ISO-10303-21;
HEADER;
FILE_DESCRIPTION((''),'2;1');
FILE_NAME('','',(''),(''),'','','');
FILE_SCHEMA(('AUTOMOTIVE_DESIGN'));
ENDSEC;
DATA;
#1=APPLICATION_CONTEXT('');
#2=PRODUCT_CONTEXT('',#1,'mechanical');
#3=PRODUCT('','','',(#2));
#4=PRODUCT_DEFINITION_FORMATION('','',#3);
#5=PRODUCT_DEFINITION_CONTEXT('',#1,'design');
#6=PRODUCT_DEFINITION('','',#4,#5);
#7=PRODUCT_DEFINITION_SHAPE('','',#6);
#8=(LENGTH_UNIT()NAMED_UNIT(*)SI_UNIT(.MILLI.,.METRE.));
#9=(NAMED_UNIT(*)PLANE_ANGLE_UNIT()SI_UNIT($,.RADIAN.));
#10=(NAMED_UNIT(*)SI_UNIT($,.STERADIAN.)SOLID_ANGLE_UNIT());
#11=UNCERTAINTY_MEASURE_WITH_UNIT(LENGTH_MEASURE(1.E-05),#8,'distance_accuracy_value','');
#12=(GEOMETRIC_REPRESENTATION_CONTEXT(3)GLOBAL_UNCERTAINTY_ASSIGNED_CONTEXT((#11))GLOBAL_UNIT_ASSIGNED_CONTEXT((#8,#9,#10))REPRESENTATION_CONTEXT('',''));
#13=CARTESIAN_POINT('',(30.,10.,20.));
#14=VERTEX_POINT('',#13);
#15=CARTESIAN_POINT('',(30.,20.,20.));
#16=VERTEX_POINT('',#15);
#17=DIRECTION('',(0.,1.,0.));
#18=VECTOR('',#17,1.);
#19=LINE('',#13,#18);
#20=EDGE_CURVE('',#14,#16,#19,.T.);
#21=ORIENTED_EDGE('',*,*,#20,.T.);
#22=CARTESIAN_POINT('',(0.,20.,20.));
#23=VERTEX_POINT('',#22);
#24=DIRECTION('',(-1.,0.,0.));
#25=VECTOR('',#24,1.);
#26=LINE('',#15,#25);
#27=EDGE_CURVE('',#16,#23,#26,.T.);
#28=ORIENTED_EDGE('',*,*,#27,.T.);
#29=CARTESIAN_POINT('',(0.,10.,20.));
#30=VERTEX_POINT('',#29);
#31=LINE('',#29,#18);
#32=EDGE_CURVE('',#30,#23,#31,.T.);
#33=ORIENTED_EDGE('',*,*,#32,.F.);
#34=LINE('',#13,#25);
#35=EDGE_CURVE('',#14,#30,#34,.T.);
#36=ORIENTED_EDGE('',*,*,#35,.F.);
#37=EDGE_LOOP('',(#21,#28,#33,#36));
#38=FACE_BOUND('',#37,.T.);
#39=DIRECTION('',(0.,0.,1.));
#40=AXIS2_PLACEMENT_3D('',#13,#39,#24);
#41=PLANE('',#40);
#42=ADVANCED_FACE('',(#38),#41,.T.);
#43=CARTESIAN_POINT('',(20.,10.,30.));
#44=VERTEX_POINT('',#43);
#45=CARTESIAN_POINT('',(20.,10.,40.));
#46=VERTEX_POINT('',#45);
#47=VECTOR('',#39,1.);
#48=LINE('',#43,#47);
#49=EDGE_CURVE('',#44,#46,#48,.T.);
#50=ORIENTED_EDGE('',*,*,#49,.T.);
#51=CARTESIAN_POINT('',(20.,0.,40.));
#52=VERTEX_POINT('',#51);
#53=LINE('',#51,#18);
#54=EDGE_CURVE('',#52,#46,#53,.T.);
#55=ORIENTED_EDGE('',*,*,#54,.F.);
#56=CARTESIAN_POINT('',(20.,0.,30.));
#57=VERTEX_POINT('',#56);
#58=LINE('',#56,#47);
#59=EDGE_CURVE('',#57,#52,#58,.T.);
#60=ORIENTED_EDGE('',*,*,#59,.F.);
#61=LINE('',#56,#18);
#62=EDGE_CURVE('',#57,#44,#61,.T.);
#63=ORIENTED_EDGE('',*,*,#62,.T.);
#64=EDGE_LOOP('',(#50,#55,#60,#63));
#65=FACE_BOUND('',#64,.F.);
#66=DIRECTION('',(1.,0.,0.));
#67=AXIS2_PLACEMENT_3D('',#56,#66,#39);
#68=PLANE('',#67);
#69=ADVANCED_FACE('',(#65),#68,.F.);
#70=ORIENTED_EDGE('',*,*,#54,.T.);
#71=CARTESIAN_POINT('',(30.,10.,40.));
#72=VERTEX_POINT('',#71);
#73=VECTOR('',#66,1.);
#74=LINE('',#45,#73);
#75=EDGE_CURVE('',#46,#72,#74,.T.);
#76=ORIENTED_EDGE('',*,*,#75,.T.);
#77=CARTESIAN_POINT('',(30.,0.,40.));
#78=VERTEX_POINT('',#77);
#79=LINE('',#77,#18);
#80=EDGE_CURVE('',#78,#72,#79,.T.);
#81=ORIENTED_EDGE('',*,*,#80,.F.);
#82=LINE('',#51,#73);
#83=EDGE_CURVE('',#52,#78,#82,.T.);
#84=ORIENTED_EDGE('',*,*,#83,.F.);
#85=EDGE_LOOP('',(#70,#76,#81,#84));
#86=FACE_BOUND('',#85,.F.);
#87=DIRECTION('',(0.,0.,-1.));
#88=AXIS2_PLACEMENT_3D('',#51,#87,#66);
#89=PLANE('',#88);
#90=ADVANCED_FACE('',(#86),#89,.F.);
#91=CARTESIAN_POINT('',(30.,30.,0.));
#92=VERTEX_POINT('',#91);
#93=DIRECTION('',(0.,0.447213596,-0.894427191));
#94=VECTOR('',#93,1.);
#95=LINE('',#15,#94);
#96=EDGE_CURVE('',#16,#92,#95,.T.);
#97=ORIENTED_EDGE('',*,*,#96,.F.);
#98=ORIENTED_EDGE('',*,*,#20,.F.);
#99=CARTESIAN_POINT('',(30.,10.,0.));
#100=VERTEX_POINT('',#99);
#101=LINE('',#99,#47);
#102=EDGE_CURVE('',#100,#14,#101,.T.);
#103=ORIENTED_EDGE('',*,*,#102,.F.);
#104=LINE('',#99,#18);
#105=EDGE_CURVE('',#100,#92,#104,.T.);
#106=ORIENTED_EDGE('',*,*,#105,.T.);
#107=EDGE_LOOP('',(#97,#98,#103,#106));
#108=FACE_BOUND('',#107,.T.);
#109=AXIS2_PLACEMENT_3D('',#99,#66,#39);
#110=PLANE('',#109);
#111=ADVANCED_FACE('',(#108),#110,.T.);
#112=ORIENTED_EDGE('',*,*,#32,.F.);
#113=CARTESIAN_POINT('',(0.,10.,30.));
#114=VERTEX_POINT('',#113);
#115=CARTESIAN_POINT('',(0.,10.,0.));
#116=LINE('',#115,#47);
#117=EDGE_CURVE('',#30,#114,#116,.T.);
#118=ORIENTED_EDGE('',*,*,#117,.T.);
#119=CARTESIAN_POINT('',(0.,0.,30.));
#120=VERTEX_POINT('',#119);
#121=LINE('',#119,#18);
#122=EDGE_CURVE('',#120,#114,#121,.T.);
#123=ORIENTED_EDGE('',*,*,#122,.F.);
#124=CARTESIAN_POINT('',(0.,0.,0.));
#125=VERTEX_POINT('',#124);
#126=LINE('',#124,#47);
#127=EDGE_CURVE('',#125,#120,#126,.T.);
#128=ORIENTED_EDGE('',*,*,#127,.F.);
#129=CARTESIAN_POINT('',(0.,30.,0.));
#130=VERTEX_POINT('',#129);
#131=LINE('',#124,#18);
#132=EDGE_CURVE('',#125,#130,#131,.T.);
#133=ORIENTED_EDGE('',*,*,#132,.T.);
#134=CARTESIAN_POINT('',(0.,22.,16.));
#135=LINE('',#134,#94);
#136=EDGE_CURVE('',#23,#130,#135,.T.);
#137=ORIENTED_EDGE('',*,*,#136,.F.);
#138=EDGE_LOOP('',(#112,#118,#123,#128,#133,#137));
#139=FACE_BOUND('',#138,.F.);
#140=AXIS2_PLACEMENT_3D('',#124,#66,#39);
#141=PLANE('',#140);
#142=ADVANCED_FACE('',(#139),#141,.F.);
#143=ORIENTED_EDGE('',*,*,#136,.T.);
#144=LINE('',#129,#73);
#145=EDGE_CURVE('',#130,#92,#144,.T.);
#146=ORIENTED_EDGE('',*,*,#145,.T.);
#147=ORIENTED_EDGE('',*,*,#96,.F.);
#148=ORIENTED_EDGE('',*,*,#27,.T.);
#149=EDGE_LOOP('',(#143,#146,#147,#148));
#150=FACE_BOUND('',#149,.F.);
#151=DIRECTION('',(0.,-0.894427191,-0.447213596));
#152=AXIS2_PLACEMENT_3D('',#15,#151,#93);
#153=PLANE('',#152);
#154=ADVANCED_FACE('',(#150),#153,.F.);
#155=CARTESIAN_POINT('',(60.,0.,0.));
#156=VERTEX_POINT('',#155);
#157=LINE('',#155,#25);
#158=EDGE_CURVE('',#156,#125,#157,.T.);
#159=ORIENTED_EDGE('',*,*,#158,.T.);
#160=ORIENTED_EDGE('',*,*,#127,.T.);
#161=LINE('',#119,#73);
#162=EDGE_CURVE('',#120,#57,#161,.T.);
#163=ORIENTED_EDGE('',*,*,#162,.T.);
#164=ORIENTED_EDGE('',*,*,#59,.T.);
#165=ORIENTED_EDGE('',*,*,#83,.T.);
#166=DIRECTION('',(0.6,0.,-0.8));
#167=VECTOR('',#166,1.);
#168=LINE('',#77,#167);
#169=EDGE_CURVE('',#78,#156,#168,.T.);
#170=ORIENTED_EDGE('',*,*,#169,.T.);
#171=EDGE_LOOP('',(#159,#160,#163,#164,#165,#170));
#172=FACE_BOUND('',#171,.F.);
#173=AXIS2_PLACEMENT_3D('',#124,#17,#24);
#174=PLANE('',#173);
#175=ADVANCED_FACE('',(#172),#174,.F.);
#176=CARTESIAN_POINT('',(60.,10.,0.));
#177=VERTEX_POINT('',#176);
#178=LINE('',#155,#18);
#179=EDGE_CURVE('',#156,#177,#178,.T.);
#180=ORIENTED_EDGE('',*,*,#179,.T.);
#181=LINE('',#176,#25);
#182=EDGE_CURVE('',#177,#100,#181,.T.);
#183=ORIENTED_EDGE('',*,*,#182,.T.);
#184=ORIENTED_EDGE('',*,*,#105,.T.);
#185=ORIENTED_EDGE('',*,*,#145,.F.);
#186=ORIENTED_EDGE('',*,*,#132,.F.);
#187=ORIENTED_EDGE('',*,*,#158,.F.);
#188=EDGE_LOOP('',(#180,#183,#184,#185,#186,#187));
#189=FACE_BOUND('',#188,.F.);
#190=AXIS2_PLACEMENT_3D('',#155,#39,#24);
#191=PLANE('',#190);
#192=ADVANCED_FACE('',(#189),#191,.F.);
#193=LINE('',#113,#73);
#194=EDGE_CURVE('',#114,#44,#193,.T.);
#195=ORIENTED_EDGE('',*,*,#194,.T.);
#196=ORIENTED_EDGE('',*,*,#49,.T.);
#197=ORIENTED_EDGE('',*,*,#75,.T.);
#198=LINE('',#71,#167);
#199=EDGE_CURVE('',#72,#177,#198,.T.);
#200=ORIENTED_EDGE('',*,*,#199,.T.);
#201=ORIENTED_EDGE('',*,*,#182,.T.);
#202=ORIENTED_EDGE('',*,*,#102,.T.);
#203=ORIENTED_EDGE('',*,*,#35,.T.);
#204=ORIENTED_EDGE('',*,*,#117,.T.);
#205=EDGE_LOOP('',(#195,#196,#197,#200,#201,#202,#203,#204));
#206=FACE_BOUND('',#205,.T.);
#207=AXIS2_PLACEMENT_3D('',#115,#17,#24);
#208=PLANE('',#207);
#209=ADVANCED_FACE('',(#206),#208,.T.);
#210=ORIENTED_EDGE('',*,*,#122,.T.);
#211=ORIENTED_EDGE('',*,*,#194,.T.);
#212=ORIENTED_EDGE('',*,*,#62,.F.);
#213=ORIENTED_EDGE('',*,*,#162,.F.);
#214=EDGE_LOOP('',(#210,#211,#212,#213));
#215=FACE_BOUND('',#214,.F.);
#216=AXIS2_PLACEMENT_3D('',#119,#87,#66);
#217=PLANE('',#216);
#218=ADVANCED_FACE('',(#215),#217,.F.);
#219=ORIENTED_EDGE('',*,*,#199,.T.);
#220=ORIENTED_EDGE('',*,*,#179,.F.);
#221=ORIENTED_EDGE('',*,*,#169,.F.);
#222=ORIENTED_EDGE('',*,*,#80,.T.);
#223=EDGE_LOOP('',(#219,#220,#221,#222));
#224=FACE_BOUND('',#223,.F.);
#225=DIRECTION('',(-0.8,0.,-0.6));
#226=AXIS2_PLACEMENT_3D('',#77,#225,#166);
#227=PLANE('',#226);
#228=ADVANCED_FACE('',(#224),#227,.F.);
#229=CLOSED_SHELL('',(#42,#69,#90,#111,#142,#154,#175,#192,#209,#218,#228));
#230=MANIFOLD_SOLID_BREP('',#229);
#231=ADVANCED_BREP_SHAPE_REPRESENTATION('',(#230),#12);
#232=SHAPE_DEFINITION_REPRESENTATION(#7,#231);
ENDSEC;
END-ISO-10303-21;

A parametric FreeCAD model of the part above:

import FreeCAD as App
import Part
import Sketcher
from FreeCAD import Vector
Q = App.Units.Quantity

doc = App.newDocument("Part")
params = doc.addObject("Spreadsheet::Sheet", "Params")
for row, (alias, value) in enumerate([
    ("sketch1_width", "60 mm"),
    ("sketch1_width2", "20 mm"),
    ("sketch1_width3", "10 mm"),
    ("sketch1_height", "30 mm"),
    ("pad1_length", "10 mm"),
    ("sketch2_width", "30 mm"),
    ("sketch2_height", "20 mm"),
    ("pad2_length", "20 mm"),
    ("sketch3_width", "10 mm"),
    ("sketch3_height", "20 mm"),
], start=1):
    params.set(f"A{row}", alias)
    params.set(f"B{row}", "=" + value)
    params.setAlias(f"B{row}", alias)

body = doc.addObject("PartDesign::Body", "Body")

# Sketch on XZ plane
sketch1 = doc.addObject("Sketcher::SketchObject", "Sketch")
body.addObject(sketch1)
sketch1.AttachmentSupport = (doc.XZ_Plane, [""])
sketch1.MapMode = "FlatFace"
sketch1.addGeometry(Part.LineSegment(Vector(60, 0, 0), Vector(0, 0, 0)), False)
sketch1.addGeometry(Part.LineSegment(Vector(0, 0, 0), Vector(0, 30, 0)), False)
sketch1.addGeometry(Part.LineSegment(Vector(0, 30, 0), Vector(20, 30, 0)), False)
sketch1.addGeometry(Part.LineSegment(Vector(20, 30, 0), Vector(20, 40, 0)), False)
sketch1.addGeometry(Part.LineSegment(Vector(20, 40, 0), Vector(30, 40, 0)), False)
sketch1.addGeometry(Part.LineSegment(Vector(30, 40, 0), Vector(60, 0, 0)), False)
sketch1.addConstraint(Sketcher.Constraint("Coincident", 0, 2, 1, 1))
sketch1.addConstraint(Sketcher.Constraint("Coincident", 1, 2, 2, 1))
sketch1.addConstraint(Sketcher.Constraint("Coincident", 2, 2, 3, 1))
sketch1.addConstraint(Sketcher.Constraint("Coincident", 3, 2, 4, 1))
sketch1.addConstraint(Sketcher.Constraint("Coincident", 4, 2, 5, 1))
sketch1.addConstraint(Sketcher.Constraint("Coincident", 5, 2, 0, 1))
sketch1.addConstraint(Sketcher.Constraint("Horizontal", 0))
sketch1.addConstraint(Sketcher.Constraint("Vertical", 1))
sketch1.addConstraint(Sketcher.Constraint("Horizontal", 2))
sketch1.addConstraint(Sketcher.Constraint("Vertical", 3))
sketch1.addConstraint(Sketcher.Constraint("Horizontal", 4))
sketch1.addConstraint(Sketcher.Constraint("Coincident", 0, 2, -1, 1))
sketch1.addConstraint(Sketcher.Constraint("Equal", 4, 3))
sketch1.addConstraint(Sketcher.Constraint("DistanceX", 0, 2, 0, 1, Q("60 mm")))
sketch1.addConstraint(Sketcher.Constraint("DistanceX", 2, 1, 2, 2, Q("20 mm")))
sketch1.addConstraint(Sketcher.Constraint("DistanceX", 4, 1, 4, 2, Q("10 mm")))
sketch1.addConstraint(Sketcher.Constraint("DistanceY", 1, 1, 1, 2, Q("30 mm")))
sketch1.setExpression("Constraints[13]", "Params.sketch1_width")
sketch1.setExpression("Constraints[14]", "Params.sketch1_width2")
sketch1.setExpression("Constraints[15]", "Params.sketch1_width3")
sketch1.setExpression("Constraints[16]", "Params.sketch1_height")
pad1 = doc.addObject("PartDesign::Pad", "Pad")
body.addObject(pad1)
pad1.Profile = sketch1
pad1.setExpression("Length", "Params.pad1_length")
pad1.Reversed = True

# Sketch on XZ plane
sketch2 = doc.addObject("Sketcher::SketchObject", "Sketch001")
body.addObject(sketch2)
sketch2.AttachmentSupport = (doc.XZ_Plane, [""])
sketch2.MapMode = "FlatFace"
sketch2.AttachmentOffset = App.Placement(Vector(0, 0, -10), App.Rotation())
sketch2.addGeometry(Part.LineSegment(Vector(30, 20, 0), Vector(30, 0, 0)), False)
sketch2.addGeometry(Part.LineSegment(Vector(30, 0, 0), Vector(0, 0, 0)), False)
sketch2.addGeometry(Part.LineSegment(Vector(0, 0, 0), Vector(0, 20, 0)), False)
sketch2.addGeometry(Part.LineSegment(Vector(0, 20, 0), Vector(30, 20, 0)), False)
sketch2.addConstraint(Sketcher.Constraint("Coincident", 0, 2, 1, 1))
sketch2.addConstraint(Sketcher.Constraint("Coincident", 1, 2, 2, 1))
sketch2.addConstraint(Sketcher.Constraint("Coincident", 2, 2, 3, 1))
sketch2.addConstraint(Sketcher.Constraint("Coincident", 3, 2, 0, 1))
sketch2.addConstraint(Sketcher.Constraint("Vertical", 0))
sketch2.addConstraint(Sketcher.Constraint("Horizontal", 1))
sketch2.addConstraint(Sketcher.Constraint("Vertical", 2))
sketch2.addConstraint(Sketcher.Constraint("Horizontal", 3))
sketch2.addConstraint(Sketcher.Constraint("Coincident", 1, 2, -1, 1))
sketch2.addConstraint(Sketcher.Constraint("DistanceX", 1, 2, 1, 1, Q("30 mm")))
sketch2.addConstraint(Sketcher.Constraint("DistanceY", 0, 2, 0, 1, Q("20 mm")))
sketch2.setExpression("Constraints[9]", "Params.sketch2_width")
sketch2.setExpression("Constraints[10]", "Params.sketch2_height")
pad2 = doc.addObject("PartDesign::Pad", "Pad001")
body.addObject(pad2)
pad2.Profile = sketch2
pad2.setExpression("Length", "Params.pad2_length")
pad2.Reversed = True

# Sketch on YZ plane
sketch3 = doc.addObject("Sketcher::SketchObject", "Sketch002")
body.addObject(sketch3)
sketch3.AttachmentSupport = (doc.YZ_Plane, [""])
sketch3.MapMode = "FlatFace"
sketch3.AttachmentOffset = App.Placement(Vector(0, 0, 30), App.Rotation())
sketch3.addGeometry(Part.LineSegment(Vector(30, 20, 0), Vector(20, 20, 0)), False)
sketch3.addGeometry(Part.LineSegment(Vector(20, 20, 0), Vector(30, 0, 0)), False)
sketch3.addGeometry(Part.LineSegment(Vector(30, 0, 0), Vector(30, 20, 0)), False)
sketch3.addConstraint(Sketcher.Constraint("Coincident", 0, 2, 1, 1))
sketch3.addConstraint(Sketcher.Constraint("Coincident", 1, 2, 2, 1))
sketch3.addConstraint(Sketcher.Constraint("Coincident", 2, 2, 0, 1))
sketch3.addConstraint(Sketcher.Constraint("Horizontal", 0))
sketch3.addConstraint(Sketcher.Constraint("Vertical", 2))
sketch3.addConstraint(Sketcher.Constraint("PointOnObject", 1, 2, -1))
sketch3.addConstraint(Sketcher.Constraint("DistanceX", 0, 2, 0, 1, Q("10 mm")))
sketch3.addConstraint(Sketcher.Constraint("DistanceY", 2, 1, 2, 2, Q("20 mm")))
sketch3.addConstraint(Sketcher.Constraint("DistanceX", -1, 1, 0, 2, Q("20 mm")))
sketch3.setExpression("Constraints[6]", "Params.sketch3_width")
sketch3.setExpression("Constraints[7]", "Params.sketch3_height")
pocket1 = doc.addObject("PartDesign::Pocket", "Pocket")
body.addObject(pocket1)
pocket1.Profile = sketch3
pocket1.Type = "ThroughAll"

doc.recompute()
